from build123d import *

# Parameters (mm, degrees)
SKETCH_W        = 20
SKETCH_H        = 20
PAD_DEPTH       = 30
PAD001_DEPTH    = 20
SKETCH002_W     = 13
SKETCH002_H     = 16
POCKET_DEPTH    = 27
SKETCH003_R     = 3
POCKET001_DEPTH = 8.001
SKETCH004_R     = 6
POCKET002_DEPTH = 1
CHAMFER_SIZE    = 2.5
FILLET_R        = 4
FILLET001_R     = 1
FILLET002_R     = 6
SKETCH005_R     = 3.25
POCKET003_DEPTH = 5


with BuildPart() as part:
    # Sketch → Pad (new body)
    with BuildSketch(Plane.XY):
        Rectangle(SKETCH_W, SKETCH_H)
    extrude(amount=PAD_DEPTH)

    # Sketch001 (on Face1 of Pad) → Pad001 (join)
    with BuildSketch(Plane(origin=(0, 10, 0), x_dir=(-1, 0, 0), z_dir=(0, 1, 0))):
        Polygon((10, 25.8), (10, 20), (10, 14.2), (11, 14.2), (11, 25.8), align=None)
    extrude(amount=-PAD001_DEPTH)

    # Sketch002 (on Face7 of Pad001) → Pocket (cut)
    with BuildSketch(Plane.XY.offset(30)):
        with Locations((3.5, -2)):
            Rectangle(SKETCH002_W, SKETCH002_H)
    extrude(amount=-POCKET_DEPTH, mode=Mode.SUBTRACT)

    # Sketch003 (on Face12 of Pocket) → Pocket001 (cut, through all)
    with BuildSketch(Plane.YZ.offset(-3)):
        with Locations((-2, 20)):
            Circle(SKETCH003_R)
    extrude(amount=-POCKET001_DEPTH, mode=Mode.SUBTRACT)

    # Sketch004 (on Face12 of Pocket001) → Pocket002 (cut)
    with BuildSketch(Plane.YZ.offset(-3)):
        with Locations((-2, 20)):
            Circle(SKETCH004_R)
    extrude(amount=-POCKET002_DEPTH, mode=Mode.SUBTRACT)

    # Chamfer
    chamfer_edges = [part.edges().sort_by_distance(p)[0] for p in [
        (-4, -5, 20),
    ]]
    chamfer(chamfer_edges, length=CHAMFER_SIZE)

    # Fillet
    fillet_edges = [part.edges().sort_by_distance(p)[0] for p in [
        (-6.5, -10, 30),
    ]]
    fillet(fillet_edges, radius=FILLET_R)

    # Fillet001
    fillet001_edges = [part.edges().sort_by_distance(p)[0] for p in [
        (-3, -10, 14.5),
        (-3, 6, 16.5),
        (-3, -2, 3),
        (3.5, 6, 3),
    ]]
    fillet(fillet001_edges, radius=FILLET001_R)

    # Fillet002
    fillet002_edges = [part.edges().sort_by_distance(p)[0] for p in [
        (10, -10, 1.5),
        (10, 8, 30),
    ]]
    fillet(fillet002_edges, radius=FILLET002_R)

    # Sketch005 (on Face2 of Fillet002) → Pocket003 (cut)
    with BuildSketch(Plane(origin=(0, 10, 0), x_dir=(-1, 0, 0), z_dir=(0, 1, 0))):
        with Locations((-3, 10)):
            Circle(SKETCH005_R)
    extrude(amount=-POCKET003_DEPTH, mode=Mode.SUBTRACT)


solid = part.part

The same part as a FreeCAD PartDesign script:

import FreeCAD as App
import Part
import Sketcher

V = App.Vector
Q = App.Units.Quantity


def edges_at(feature, points):
    """Names of the edges that pass closest to the given points."""
    edges = feature.Shape.Edges
    near = lambda p: min(range(len(edges)), key=lambda i: edges[i].distToShape(Part.Vertex(*p))[0])
    return sorted({f"Edge{near(p) + 1}" for p in points})

doc = App.newDocument("Part")
body = doc.addObject("PartDesign::Body", "Body")

sketch1 = doc.addObject("Sketcher::SketchObject", "Sketch")
body.addObject(sketch1)
sketch1.AttachmentSupport = (doc.XY_Plane, [""])
sketch1.MapMode = "FlatFace"
sketch1.addGeometry(Part.LineSegment(V(-10, 10, 0), V(-10, -10, 0)), False)
sketch1.addGeometry(Part.LineSegment(V(-10, -10, 0), V(10, -10, 0)), False)
sketch1.addGeometry(Part.LineSegment(V(10, -10, 0), V(10, 10, 0)), False)
sketch1.addGeometry(Part.LineSegment(V(10, 10, 0), V(-10, 10, 0)), False)
sketch1.addConstraint(Sketcher.Constraint("Coincident", 0, 2, 1, 1))
sketch1.addConstraint(Sketcher.Constraint("Coincident", 1, 2, 2, 1))
sketch1.addConstraint(Sketcher.Constraint("Coincident", 2, 2, 3, 1))
sketch1.addConstraint(Sketcher.Constraint("Coincident", 3, 2, 0, 1))
sketch1.addConstraint(Sketcher.Constraint("Vertical", 0))
sketch1.addConstraint(Sketcher.Constraint("Horizontal", 1))
sketch1.addConstraint(Sketcher.Constraint("Vertical", 2))
sketch1.addConstraint(Sketcher.Constraint("Horizontal", 3))
sketch1.addConstraint(Sketcher.Constraint("Symmetric", 0, 2, 2, 2, -1, 1))
sketch1.addConstraint(Sketcher.Constraint("Equal", 3, 0))
sketch1.addConstraint(Sketcher.Constraint("DistanceX", 1, 1, 1, 2, Q("20 mm")))
pad1 = doc.addObject("PartDesign::Pad", "Pad")
body.addObject(pad1)
pad1.Profile = sketch1
pad1.Length = 30

sketch2 = doc.addObject("Sketcher::SketchObject", "Sketch001")
body.addObject(sketch2)
sketch2.AttachmentSupport = (doc.XZ_Plane, [""])
sketch2.MapMode = "FlatFace"
sketch2.AttachmentOffset = App.Placement(V(0, 0, -10), App.Rotation())
sketch2.addGeometry(Part.LineSegment(V(-10, 25.8, 0), V(-10, 14.2, 0)), False)
sketch2.addGeometry(Part.LineSegment(V(-10, 14.2, 0), V(-11, 14.2, 0)), False)
sketch2.addGeometry(Part.LineSegment(V(-11, 14.2, 0), V(-11, 25.8, 0)), False)
sketch2.addGeometry(Part.LineSegment(V(-11, 25.8, 0), V(-10, 25.8, 0)), False)
sketch2.addConstraint(Sketcher.Constraint("Coincident", 0, 2, 1, 1))
sketch2.addConstraint(Sketcher.Constraint("Coincident", 1, 2, 2, 1))
sketch2.addConstraint(Sketcher.Constraint("Coincident", 2, 2, 3, 1))
sketch2.addConstraint(Sketcher.Constraint("Coincident", 3, 2, 0, 1))
sketch2.addConstraint(Sketcher.Constraint("Vertical", 0))
sketch2.addConstraint(Sketcher.Constraint("Horizontal", 1))
sketch2.addConstraint(Sketcher.Constraint("Vertical", 2))
sketch2.addConstraint(Sketcher.Constraint("Horizontal", 3))
sketch2.addConstraint(Sketcher.Constraint("DistanceX", 1, 2, 1, 1, Q("1 mm")))
sketch2.addConstraint(Sketcher.Constraint("DistanceY", 0, 2, 0, 1, Q("11.6 mm")))
sketch2.addConstraint(Sketcher.Constraint("DistanceX", 0, 2, -1, 1, Q("10 mm")))
sketch2.addConstraint(Sketcher.Constraint("DistanceY", -1, 1, 0, 2, Q("14.2 mm")))
pad2 = doc.addObject("PartDesign::Pad", "Pad001")
body.addObject(pad2)
pad2.Profile = sketch2
pad2.Length = 20

sketch3 = doc.addObject("Sketcher::SketchObject", "Sketch002")
body.addObject(sketch3)
sketch3.AttachmentSupport = (doc.XY_Plane, [""])
sketch3.MapMode = "FlatFace"
sketch3.AttachmentOffset = App.Placement(V(0, 0, 30), App.Rotation())
sketch3.addGeometry(Part.LineSegment(V(-3, 6, 0), V(-3, -10, 0)), False)
sketch3.addGeometry(Part.LineSegment(V(-3, -10, 0), V(10, -10, 0)), False)
sketch3.addGeometry(Part.LineSegment(V(10, -10, 0), V(10, 6, 0)), False)
sketch3.addGeometry(Part.LineSegment(V(10, 6, 0), V(-3, 6, 0)), False)
sketch3.addConstraint(Sketcher.Constraint("Coincident", 0, 2, 1, 1))
sketch3.addConstraint(Sketcher.Constraint("Coincident", 1, 2, 2, 1))
sketch3.addConstraint(Sketcher.Constraint("Coincident", 2, 2, 3, 1))
sketch3.addConstraint(Sketcher.Constraint("Coincident", 3, 2, 0, 1))
sketch3.addConstraint(Sketcher.Constraint("Vertical", 0))
sketch3.addConstraint(Sketcher.Constraint("Horizontal", 1))
sketch3.addConstraint(Sketcher.Constraint("Vertical", 2))
sketch3.addConstraint(Sketcher.Constraint("Horizontal", 3))
sketch3.addConstraint(Sketcher.Constraint("DistanceX", 1, 1, 1, 2, Q("13 mm")))
sketch3.addConstraint(Sketcher.Constraint("DistanceY", 0, 2, 0, 1, Q("16 mm")))
sketch3.addConstraint(Sketcher.Constraint("DistanceX", 0, 2, -1, 1, Q("3 mm")))
sketch3.addConstraint(Sketcher.Constraint("DistanceY", 0, 2, -1, 1, Q("10 mm")))
pocket1 = doc.addObject("PartDesign::Pocket", "Pocket")
body.addObject(pocket1)
pocket1.Profile = sketch3
pocket1.Length = 27

sketch4 = doc.addObject("Sketcher::SketchObject", "Sketch003")
body.addObject(sketch4)
sketch4.AttachmentSupport = (doc.YZ_Plane, [""])
sketch4.MapMode = "FlatFace"
sketch4.AttachmentOffset = App.Placement(V(0, 0, -3), App.Rotation())
sketch4.addGeometry(Part.Circle(V(-2, 20, 0), V(0, 0, 1), 3), False)
sketch4.addConstraint(Sketcher.Constraint("Diameter", 0, Q("6 mm")))
sketch4.addConstraint(Sketcher.Constraint("DistanceX", 0, 3, -1, 1, Q("2 mm")))
sketch4.addConstraint(Sketcher.Constraint("DistanceY", -1, 1, 0, 3, Q("20 mm")))
pocket2 = doc.addObject("PartDesign::Pocket", "Pocket001")
body.addObject(pocket2)
pocket2.Profile = sketch4
pocket2.Type = "ThroughAll"

sketch5 = doc.addObject("Sketcher::SketchObject", "Sketch004")
body.addObject(sketch5)
sketch5.AttachmentSupport = (doc.YZ_Plane, [""])
sketch5.MapMode = "FlatFace"
sketch5.AttachmentOffset = App.Placement(V(0, 0, -3), App.Rotation())
sketch5.addGeometry(Part.Circle(V(-2, 20, 0), V(0, 0, 1), 6), False)
sketch5.addConstraint(Sketcher.Constraint("Diameter", 0, Q("12 mm")))
sketch5.addConstraint(Sketcher.Constraint("DistanceX", 0, 3, -1, 1, Q("2 mm")))
sketch5.addConstraint(Sketcher.Constraint("DistanceY", -1, 1, 0, 3, Q("20 mm")))
pocket3 = doc.addObject("PartDesign::Pocket", "Pocket002")
body.addObject(pocket3)
pocket3.Profile = sketch5
pocket3.Length = 1
doc.recompute()

chamfer = doc.addObject("PartDesign::Chamfer", "Chamfer")
body.addObject(chamfer)
chamfer.Base = (pocket3, edges_at(pocket3, [(-4, -5, 20)]))
chamfer.Size = 2.5
doc.recompute()

fillet = doc.addObject("PartDesign::Fillet", "Fillet")
body.addObject(fillet)
fillet.Base = (chamfer, edges_at(chamfer, [(-6.5, -10, 30)]))
fillet.Radius = 4
doc.recompute()

fillet2 = doc.addObject("PartDesign::Fillet", "Fillet001")
body.addObject(fillet2)
fillet2.Base = (fillet, edges_at(fillet, [
    (-3, -10, 14.5),
    (-3, 6, 16.5),
    (-3, -2, 3),
    (3.5, 6, 3),
]))
fillet2.Radius = 1
doc.recompute()

fillet3 = doc.addObject("PartDesign::Fillet", "Fillet002")
body.addObject(fillet3)
fillet3.Base = (fillet2, edges_at(fillet2, [(10, -10, 1.5), (10, 8, 30)]))
fillet3.Radius = 6

sketch6 = doc.addObject("Sketcher::SketchObject", "Sketch005")
body.addObject(sketch6)
sketch6.AttachmentSupport = (doc.XZ_Plane, [""])
sketch6.MapMode = "FlatFace"
sketch6.AttachmentOffset = App.Placement(V(0, 0, -10), App.Rotation())
sketch6.addGeometry(Part.Circle(V(3, 10, 0), V(0, 0, 1), 3.2), False)
sketch6.addConstraint(Sketcher.Constraint("Diameter", 0, Q("6.5 mm")))
sketch6.addConstraint(Sketcher.Constraint("DistanceX", -1, 1, 0, 3, Q("3 mm")))
sketch6.addConstraint(Sketcher.Constraint("DistanceY", -1, 1, 0, 3, Q("10 mm")))
pocket4 = doc.addObject("PartDesign::Pocket", "Pocket003")
body.addObject(pocket4)
pocket4.Profile = sketch6
pocket4.Length = 5
pocket4.Reversed = True

doc.recompute()
